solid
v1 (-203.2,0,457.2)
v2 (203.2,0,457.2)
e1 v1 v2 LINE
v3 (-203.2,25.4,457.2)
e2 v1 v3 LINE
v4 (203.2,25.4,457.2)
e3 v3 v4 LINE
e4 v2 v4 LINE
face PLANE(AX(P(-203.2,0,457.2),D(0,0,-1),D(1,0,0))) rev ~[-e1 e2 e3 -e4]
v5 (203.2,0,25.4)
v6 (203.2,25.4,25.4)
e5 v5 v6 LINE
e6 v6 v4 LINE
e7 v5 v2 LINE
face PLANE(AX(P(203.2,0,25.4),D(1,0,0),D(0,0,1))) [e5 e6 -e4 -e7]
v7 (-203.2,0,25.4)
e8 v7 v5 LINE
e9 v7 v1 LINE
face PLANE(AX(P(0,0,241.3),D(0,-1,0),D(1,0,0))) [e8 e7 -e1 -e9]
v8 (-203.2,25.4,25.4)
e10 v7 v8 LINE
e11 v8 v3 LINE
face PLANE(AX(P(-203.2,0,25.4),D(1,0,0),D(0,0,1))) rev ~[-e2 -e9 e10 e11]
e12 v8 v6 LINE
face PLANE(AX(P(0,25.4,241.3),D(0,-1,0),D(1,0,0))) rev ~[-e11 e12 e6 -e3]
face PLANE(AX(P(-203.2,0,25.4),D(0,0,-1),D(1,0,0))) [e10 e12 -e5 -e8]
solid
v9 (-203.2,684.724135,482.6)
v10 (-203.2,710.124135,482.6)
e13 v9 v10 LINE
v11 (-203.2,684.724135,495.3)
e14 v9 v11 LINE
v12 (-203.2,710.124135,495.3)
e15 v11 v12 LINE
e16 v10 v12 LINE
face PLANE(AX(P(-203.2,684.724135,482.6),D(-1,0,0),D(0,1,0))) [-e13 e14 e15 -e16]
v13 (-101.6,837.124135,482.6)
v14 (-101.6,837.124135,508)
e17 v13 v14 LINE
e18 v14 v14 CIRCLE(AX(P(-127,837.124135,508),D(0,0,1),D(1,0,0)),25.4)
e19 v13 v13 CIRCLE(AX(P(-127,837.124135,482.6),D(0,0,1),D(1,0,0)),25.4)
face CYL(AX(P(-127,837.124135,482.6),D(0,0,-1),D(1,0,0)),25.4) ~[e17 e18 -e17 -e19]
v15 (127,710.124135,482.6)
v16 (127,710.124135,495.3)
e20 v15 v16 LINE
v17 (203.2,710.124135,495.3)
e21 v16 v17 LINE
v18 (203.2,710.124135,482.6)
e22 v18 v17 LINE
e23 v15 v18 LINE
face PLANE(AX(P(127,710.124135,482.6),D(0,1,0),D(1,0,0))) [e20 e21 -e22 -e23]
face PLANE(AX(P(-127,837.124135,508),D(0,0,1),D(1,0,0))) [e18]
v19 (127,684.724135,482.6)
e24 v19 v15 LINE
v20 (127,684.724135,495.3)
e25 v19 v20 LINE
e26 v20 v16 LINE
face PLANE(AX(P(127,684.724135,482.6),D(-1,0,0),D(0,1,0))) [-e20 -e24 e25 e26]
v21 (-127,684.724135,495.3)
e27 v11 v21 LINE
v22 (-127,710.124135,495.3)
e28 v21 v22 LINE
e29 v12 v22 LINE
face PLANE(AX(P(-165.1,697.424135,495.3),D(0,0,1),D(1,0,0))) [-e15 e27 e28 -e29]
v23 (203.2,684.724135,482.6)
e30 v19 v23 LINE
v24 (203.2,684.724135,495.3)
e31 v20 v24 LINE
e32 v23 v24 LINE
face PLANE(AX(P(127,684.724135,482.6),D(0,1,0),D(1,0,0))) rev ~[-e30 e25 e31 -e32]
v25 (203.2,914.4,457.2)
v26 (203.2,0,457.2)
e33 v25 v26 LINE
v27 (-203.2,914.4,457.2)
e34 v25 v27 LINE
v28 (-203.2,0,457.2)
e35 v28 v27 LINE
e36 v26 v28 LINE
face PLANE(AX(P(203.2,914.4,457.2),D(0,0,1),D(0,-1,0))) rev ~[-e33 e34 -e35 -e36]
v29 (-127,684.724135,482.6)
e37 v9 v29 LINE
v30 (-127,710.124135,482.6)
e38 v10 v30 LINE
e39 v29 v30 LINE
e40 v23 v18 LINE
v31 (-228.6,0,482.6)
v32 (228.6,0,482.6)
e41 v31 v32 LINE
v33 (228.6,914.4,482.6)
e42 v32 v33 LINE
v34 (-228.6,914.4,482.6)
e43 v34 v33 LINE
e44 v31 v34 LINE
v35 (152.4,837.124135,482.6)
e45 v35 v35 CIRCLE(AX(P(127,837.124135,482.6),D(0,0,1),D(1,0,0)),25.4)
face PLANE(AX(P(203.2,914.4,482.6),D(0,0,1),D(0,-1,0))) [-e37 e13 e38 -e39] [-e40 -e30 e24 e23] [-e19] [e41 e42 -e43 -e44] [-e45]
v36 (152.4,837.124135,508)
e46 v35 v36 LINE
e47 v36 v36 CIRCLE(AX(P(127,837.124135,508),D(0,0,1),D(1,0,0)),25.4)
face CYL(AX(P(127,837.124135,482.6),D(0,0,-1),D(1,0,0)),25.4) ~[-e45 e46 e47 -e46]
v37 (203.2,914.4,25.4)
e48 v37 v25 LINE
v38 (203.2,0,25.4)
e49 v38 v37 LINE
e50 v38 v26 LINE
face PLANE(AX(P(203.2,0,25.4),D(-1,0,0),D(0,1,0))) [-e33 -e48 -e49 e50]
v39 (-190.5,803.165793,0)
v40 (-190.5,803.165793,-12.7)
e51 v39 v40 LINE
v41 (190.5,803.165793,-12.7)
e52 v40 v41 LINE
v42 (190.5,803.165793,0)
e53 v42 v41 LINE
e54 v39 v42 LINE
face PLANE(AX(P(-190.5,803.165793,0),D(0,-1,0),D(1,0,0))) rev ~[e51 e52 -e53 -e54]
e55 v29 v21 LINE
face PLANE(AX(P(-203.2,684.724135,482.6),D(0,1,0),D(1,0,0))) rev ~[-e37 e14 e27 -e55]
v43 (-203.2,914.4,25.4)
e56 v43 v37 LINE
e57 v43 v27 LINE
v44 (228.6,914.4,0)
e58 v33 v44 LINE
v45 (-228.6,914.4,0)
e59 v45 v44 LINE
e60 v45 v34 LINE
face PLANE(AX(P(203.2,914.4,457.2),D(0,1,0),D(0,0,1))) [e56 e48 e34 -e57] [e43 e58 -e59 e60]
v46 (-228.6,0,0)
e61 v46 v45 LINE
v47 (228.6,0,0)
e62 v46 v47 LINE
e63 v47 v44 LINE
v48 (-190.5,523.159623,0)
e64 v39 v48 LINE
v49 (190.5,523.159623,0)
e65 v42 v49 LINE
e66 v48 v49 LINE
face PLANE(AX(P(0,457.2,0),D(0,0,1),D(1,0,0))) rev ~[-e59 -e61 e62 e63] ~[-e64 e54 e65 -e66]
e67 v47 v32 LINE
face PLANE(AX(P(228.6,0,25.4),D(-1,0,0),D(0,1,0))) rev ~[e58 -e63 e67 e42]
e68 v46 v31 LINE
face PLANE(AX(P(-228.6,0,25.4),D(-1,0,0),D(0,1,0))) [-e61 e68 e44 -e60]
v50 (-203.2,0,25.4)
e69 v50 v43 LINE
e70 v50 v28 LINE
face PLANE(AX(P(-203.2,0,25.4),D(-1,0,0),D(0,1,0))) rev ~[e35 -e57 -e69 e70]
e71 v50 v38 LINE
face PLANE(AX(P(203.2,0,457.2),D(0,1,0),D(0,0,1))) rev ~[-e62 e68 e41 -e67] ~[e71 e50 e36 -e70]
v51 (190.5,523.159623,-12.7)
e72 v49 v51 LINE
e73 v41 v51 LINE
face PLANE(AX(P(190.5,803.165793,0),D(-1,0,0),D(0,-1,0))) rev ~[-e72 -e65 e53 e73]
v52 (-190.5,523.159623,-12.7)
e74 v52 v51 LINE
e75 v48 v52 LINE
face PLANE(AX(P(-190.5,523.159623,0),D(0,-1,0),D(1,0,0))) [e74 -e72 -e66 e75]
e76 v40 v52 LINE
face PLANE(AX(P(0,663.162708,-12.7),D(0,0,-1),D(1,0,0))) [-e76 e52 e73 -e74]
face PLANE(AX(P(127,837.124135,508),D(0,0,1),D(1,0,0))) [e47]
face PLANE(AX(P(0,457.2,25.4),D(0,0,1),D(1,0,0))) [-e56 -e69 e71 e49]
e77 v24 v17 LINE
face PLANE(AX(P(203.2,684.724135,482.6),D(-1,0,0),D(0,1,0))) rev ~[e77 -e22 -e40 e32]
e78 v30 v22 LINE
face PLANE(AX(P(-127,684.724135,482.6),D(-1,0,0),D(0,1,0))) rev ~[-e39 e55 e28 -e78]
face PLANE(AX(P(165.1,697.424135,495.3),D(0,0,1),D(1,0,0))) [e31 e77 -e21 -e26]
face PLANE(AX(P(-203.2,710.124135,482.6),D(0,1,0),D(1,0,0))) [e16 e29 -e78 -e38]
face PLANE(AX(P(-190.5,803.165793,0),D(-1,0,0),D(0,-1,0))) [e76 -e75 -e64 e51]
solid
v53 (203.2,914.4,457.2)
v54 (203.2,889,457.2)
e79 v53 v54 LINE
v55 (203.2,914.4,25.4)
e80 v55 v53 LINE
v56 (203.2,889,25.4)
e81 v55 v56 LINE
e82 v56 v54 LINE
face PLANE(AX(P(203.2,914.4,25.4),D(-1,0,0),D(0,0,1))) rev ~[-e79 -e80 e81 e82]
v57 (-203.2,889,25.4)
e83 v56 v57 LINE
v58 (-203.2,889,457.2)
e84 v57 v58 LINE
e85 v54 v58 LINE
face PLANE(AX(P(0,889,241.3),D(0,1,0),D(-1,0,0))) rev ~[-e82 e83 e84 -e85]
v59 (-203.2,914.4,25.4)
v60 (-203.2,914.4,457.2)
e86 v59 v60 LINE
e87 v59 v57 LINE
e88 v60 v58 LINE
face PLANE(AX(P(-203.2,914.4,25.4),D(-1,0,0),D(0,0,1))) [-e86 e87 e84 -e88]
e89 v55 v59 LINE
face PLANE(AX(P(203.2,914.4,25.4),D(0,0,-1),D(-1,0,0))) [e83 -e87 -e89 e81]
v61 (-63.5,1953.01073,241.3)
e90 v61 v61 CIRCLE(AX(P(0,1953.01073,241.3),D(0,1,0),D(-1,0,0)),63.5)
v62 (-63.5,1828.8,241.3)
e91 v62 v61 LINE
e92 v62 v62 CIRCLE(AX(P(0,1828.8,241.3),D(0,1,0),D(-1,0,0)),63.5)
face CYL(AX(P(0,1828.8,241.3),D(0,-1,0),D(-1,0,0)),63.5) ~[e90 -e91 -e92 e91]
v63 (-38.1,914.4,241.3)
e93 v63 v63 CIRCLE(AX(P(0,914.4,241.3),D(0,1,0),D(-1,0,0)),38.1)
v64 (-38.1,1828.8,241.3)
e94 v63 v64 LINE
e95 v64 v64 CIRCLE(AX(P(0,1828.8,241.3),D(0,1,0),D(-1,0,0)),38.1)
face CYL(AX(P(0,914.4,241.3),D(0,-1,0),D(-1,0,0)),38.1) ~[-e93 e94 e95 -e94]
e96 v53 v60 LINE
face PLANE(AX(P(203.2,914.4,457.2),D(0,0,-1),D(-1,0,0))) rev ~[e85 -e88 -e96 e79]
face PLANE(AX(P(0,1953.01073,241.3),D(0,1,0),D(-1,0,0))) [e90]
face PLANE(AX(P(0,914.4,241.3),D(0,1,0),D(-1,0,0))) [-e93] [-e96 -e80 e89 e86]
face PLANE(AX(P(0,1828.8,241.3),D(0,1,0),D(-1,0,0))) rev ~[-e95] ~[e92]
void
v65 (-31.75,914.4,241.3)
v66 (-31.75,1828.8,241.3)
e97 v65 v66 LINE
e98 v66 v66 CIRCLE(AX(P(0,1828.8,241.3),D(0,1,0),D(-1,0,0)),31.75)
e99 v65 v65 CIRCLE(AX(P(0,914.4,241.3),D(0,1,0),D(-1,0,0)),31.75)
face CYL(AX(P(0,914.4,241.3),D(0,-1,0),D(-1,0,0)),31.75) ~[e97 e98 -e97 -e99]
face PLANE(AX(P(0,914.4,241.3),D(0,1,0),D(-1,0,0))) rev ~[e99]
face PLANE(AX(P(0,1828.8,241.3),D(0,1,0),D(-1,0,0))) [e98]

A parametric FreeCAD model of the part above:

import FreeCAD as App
import Part
import Sketcher

V = App.Vector
Q = App.Units.Quantity

doc = App.newDocument("Part")
body = doc.addObject("PartDesign::Body", "Body")

sketch1 = doc.addObject("Sketcher::SketchObject", "Sketch")
body.addObject(sketch1)
sketch1.AttachmentSupport = (doc.XY_Plane, [""])
sketch1.MapMode = "FlatFace"
sketch1.addGeometry(Part.LineSegment(V(-228.6, 914.4, 0), V(-228.6, 0, 0)), False)
sketch1.addGeometry(Part.LineSegment(V(-228.6, 0, 0), V(228.6, 0, 0)), False)
sketch1.addGeometry(Part.LineSegment(V(228.6, 0, 0), V(228.6, 914.4, 0)), False)
sketch1.addGeometry(Part.LineSegment(V(228.6, 914.4, 0), V(-228.6, 914.4, 0)), False)
sketch1.addConstraint(Sketcher.Constraint("Coincident", 0, 2, 1, 1))
sketch1.addConstraint(Sketcher.Constraint("Coincident", 1, 2, 2, 1))
sketch1.addConstraint(Sketcher.Constraint("Coincident", 2, 2, 3, 1))
sketch1.addConstraint(Sketcher.Constraint("Coincident", 3, 2, 0, 1))
sketch1.addConstraint(Sketcher.Constraint("Vertical", 0))
sketch1.addConstraint(Sketcher.Constraint("Horizontal", 1))
sketch1.addConstraint(Sketcher.Constraint("Vertical", 2))
sketch1.addConstraint(Sketcher.Constraint("Horizontal", 3))
sketch1.addConstraint(Sketcher.Constraint("Symmetric", 0, 2, 1, 2, -1, 1))
sketch1.addConstraint(Sketcher.Constraint("DistanceX", 1, 1, 1, 2, Q("18 in")))
sketch1.addConstraint(Sketcher.Constraint("DistanceY", 0, 2, 0, 1, Q("36 in")))
pad1 = doc.addObject("PartDesign::Pad", "Pad")
body.addObject(pad1)
pad1.Profile = sketch1
pad1.Length = Q("1 in")

sketch2 = doc.addObject("Sketcher::SketchObject", "Sketch001")
body.addObject(sketch2)
sketch2.AttachmentSupport = (doc.XY_Plane, [""])
sketch2.MapMode = "FlatFace"
sketch2.AttachmentOffset = App.Placement(V(0, 0, 1 * 25.4), App.Rotation())
sketch2.addGeometry(Part.LineSegment(V(-228.6, 914.4, 0), V(-228.6, 0, 0)), False)
sketch2.addGeometry(Part.LineSegment(V(-228.6, 0, 0), V(-203.2, 0, 0)), False)
sketch2.addGeometry(Part.LineSegment(V(-203.2, 0, 0), V(-203.2, 914.4, 0)), False)
sketch2.addGeometry(Part.LineSegment(V(-203.2, 914.4, 0), V(-228.6, 914.4, 0)), False)
sketch2.addConstraint(Sketcher.Constraint("Coincident", 0, 2, 1, 1))
sketch2.addConstraint(Sketcher.Constraint("Coincident", 1, 2, 2, 1))
sketch2.addConstraint(Sketcher.Constraint("Coincident", 2, 2, 3, 1))
sketch2.addConstraint(Sketcher.Constraint("Coincident", 3, 2, 0, 1))
sketch2.addConstraint(Sketcher.Constraint("Vertical", 0))
sketch2.addConstraint(Sketcher.Constraint("Horizontal", 1))
sketch2.addConstraint(Sketcher.Constraint("Vertical", 2))
sketch2.addConstraint(Sketcher.Constraint("Horizontal", 3))
sketch2.addConstraint(Sketcher.Constraint("PointOnObject", 0, 2, -1))
sketch2.addConstraint(Sketcher.Constraint("DistanceX", 1, 1, 1, 2, Q("1 in")))
sketch2.addConstraint(Sketcher.Constraint("DistanceY", 0, 2, 0, 1, Q("36 in")))
sketch2.addConstraint(Sketcher.Constraint("DistanceX", 0, 2, -1, 1, Q("9 in")))
pad2 = doc.addObject("PartDesign::Pad", "Pad001")
body.addObject(pad2)
pad2.Profile = sketch2
pad2.Length = Q("18 in")

sketch3 = doc.addObject("Sketcher::SketchObject", "Sketch002")
body.addObject(sketch3)
sketch3.AttachmentSupport = (doc.XY_Plane, [""])
sketch3.MapMode = "FlatFace"
sketch3.AttachmentOffset = App.Placement(V(0, 0, 1 * 25.4), App.Rotation())
sketch3.addGeometry(Part.LineSegment(V(203.2, 914.4, 0), V(203.2, 0, 0)), False)
sketch3.addGeometry(Part.LineSegment(V(203.2, 0, 0), V(228.6, 0, 0)), False)
sketch3.addGeometry(Part.LineSegment(V(228.6, 0, 0), V(228.6, 914.4, 0)), False)
sketch3.addGeometry(Part.LineSegment(V(228.6, 914.4, 0), V(203.2, 914.4, 0)), False)
sketch3.addConstraint(Sketcher.Constraint("Coincident", 0, 2, 1, 1))
sketch3.addConstraint(Sketcher.Constraint("Coincident", 1, 2, 2, 1))
sketch3.addConstraint(Sketcher.Constraint("Coincident", 2, 2, 3, 1))
sketch3.addConstraint(Sketcher.Constraint("Coincident", 3, 2, 0, 1))
sketch3.addConstraint(Sketcher.Constraint("Vertical", 0))
sketch3.addConstraint(Sketcher.Constraint("Horizontal", 1))
sketch3.addConstraint(Sketcher.Constraint("Vertical", 2))
sketch3.addConstraint(Sketcher.Constraint("Horizontal", 3))
sketch3.addConstraint(Sketcher.Constraint("PointOnObject", 0, 2, -1))
sketch3.addConstraint(Sketcher.Constraint("DistanceX", 1, 1, 1, 2, Q("1 in")))
sketch3.addConstraint(Sketcher.Constraint("DistanceY", 0, 2, 0, 1, Q("36 in")))
sketch3.addConstraint(Sketcher.Constraint("DistanceX", -1, 1, 0, 2, Q("8 in")))
pad3 = doc.addObject("PartDesign::Pad", "Pad002")
body.addObject(pad3)
pad3.Profile = sketch3
pad3.Length = Q("18 in")

sketch4 = doc.addObject("Sketcher::SketchObject", "Sketch003")
body.addObject(sketch4)
sketch4.AttachmentSupport = (doc.YZ_Plane, [""])
sketch4.MapMode = "FlatFace"
sketch4.AttachmentOffset = App.Placement(V(0, 0, 8 * 25.4), App.Rotation())
sketch4.addGeometry(Part.LineSegment(V(914.4, 482.6, 0), V(914.4, 457.2, 0)), False)
sketch4.addGeometry(Part.LineSegment(V(914.4, 457.2, 0), V(0, 457.2, 0)), False)
sketch4.addGeometry(Part.LineSegment(V(0, 457.2, 0), V(0, 482.6, 0)), False)
sketch4.addGeometry(Part.LineSegment(V(0, 482.6, 0), V(914.4, 482.6, 0)), False)
sketch4.addConstraint(Sketcher.Constraint("Coincident", 0, 2, 1, 1))
sketch4.addConstraint(Sketcher.Constraint("Coincident", 1, 2, 2, 1))
sketch4.addConstraint(Sketcher.Constraint("Coincident", 2, 2, 3, 1))
sketch4.addConstraint(Sketcher.Constraint("Coincident", 3, 2, 0, 1))
sketch4.addConstraint(Sketcher.Constraint("Vertical", 0))
sketch4.addConstraint(Sketcher.Constraint("Horizontal", 1))
sketch4.addConstraint(Sketcher.Constraint("Vertical", 2))
sketch4.addConstraint(Sketcher.Constraint("Horizontal", 3))
sketch4.addConstraint(Sketcher.Constraint("PointOnObject", 1, 2, -2))
sketch4.addConstraint(Sketcher.Constraint("DistanceX", 1, 2, 1, 1, Q("36 in")))
sketch4.addConstraint(Sketcher.Constraint("DistanceY", 0, 2, 0, 1, Q("1 in")))
sketch4.addConstraint(Sketcher.Constraint("DistanceY", -1, 1, 0, 2, Q("18 in")))
pad4 = doc.addObject("PartDesign::Pad", "Pad003")
body.addObject(pad4)
pad4.Profile = sketch4
pad4.Length = Q("17 in")
pad4.Reversed = True

sketch5 = doc.addObject("Sketcher::SketchObject", "Sketch004")
body.addObject(sketch5)
sketch5.AttachmentSupport = (doc.XY_Plane, [""])
sketch5.MapMode = "FlatFace"
sketch5.AttachmentOffset = App.Placement(V(0, 0, 19 * 25.4), App.Rotation())
sketch5.addGeometry(Part.Circle(V(127, 837.124135, 0), V(0, 0, 1), 25.4), False)
sketch5.addGeometry(Part.Circle(V(-127, 837.124135, 0), V(0, 0, 1), 25.4), False)
sketch5.addConstraint(Sketcher.Constraint("Equal", 0, 1))
sketch5.addConstraint(Sketcher.Constraint("Symmetric", 0, 3, 1, 3, -2))
sketch5.addConstraint(Sketcher.Constraint("Diameter", 0, Q("2 in")))
sketch5.addConstraint(Sketcher.Constraint("DistanceX", -1, 1, 0, 3, Q("5 in")))
sketch5.addConstraint(Sketcher.Constraint("DistanceY", -1, 1, 0, 3, Q("837.124135 mm")))
pad5 = doc.addObject("PartDesign::Pad", "Pad004")
body.addObject(pad5)
pad5.Profile = sketch5
pad5.Length = Q("1 in")

sketch6 = doc.addObject("Sketcher::SketchObject", "Sketch005")
body.addObject(sketch6)
sketch6.AttachmentSupport = (doc.XY_Plane, [""])
sketch6.MapMode = "FlatFace"
sketch6.AttachmentOffset = App.Placement(V(0, 0, 19 * 25.4), App.Rotation())
sketch6.addGeometry(Part.LineSegment(V(-203.2, 710.124135, 0), V(-203.2, 684.724135, 0)), False)
sketch6.addGeometry(Part.LineSegment(V(-203.2, 684.724135, 0), V(-127, 684.724135, 0)), False)
sketch6.addGeometry(Part.LineSegment(V(-127, 684.724135, 0), V(-127, 710.124135, 0)), False)
sketch6.addGeometry(Part.LineSegment(V(-127, 710.124135, 0), V(-203.2, 710.124135, 0)), False)
sketch6.addGeometry(Part.LineSegment(V(127, 710.124135, 0), V(127, 684.724135, 0)), False)
sketch6.addGeometry(Part.LineSegment(V(127, 684.724135, 0), V(203.2, 684.724135, 0)), False)
sketch6.addGeometry(Part.LineSegment(V(203.2, 684.724135, 0), V(203.2, 710.124135, 0)), False)
sketch6.addGeometry(Part.LineSegment(V(203.2, 710.124135, 0), V(127, 710.124135, 0)), False)
sketch6.addConstraint(Sketcher.Constraint("Coincident", 0, 2, 1, 1))
sketch6.addConstraint(Sketcher.Constraint("Coincident", 1, 2, 2, 1))
sketch6.addConstraint(Sketcher.Constraint("Coincident", 2, 2, 3, 1))
sketch6.addConstraint(Sketcher.Constraint("Coincident", 3, 2, 0, 1))
sketch6.addConstraint(Sketcher.Constraint("Coincident", 4, 2, 5, 1))
sketch6.addConstraint(Sketcher.Constraint("Coincident", 5, 2, 6, 1))
sketch6.addConstraint(Sketcher.Constraint("Coincident", 6, 2, 7, 1))
sketch6.addConstraint(Sketcher.Constraint("Coincident", 7, 2, 4, 1))
sketch6.addConstraint(Sketcher.Constraint("Vertical", 0))
sketch6.addConstraint(Sketcher.Constraint("Horizontal", 1))
sketch6.addConstraint(Sketcher.Constraint("Vertical", 2))
sketch6.addConstraint(Sketcher.Constraint("Horizontal", 3))
sketch6.addConstraint(Sketcher.Constraint("Vertical", 4))
sketch6.addConstraint(Sketcher.Constraint("Horizontal", 5))
sketch6.addConstraint(Sketcher.Constraint("Vertical", 6))
sketch6.addConstraint(Sketcher.Constraint("Horizontal", 7))
sketch6.addConstraint(Sketcher.Constraint("Symmetric", 1, 2, 4, 2, -2))
sketch6.addConstraint(Sketcher.Constraint("Symmetric", 3, 2, 6, 2, -2))
sketch6.addConstraint(Sketcher.Constraint("DistanceX", 1, 1, 1, 2, Q("3 in")))
sketch6.addConstraint(Sketcher.Constraint("DistanceY", 0, 2, 0, 1, Q("1 in")))
sketch6.addConstraint(Sketcher.Constraint("DistanceX", 0, 2, -1, 1, Q("8 in")))
sketch6.addConstraint(Sketcher.Constraint("DistanceY", -1, 1, 0, 2, Q("684.724135 mm")))
pad6 = doc.addObject("PartDesign::Pad", "Pad005")
body.addObject(pad6)
pad6.Profile = sketch6
pad6.Length = Q("0.5 in")

sketch7 = doc.addObject("Sketcher::SketchObject", "Sketch006")
body.addObject(sketch7)
sketch7.AttachmentSupport = (doc.XY_Plane, [""])
sketch7.MapMode = "FlatFace"
sketch7.addGeometry(Part.LineSegment(V(-190.5, 523.159623, 0), V(-190.5, 803.165793, 0)), False)
sketch7.addGeometry(Part.LineSegment(V(-190.5, 803.165793, 0), V(190.5, 803.165793, 0)), False)
sketch7.addGeometry(Part.LineSegment(V(190.5, 803.165793, 0), V(190.5, 523.159623, 0)), False)
sketch7.addGeometry(Part.LineSegment(V(190.5, 523.159623, 0), V(-190.5, 523.159623, 0)), False)
sketch7.addConstraint(Sketcher.Constraint("Coincident", 0, 2, 1, 1))
sketch7.addConstraint(Sketcher.Constraint("Coincident", 1, 2, 2, 1))
sketch7.addConstraint(Sketcher.Constraint("Coincident", 2, 2, 3, 1))
sketch7.addConstraint(Sketcher.Constraint("Coincident", 3, 2, 0, 1))
sketch7.addConstraint(Sketcher.Constraint("Vertical", 0))
sketch7.addConstraint(Sketcher.Constraint("Horizontal", 1))
sketch7.addConstraint(Sketcher.Constraint("Vertical", 2))
sketch7.addConstraint(Sketcher.Constraint("Horizontal", 3))
sketch7.addConstraint(Sketcher.Constraint("DistanceX", 1, 1, 1, 2, Q("15 in")))
sketch7.addConstraint(Sketcher.Constraint("DistanceX", 0, 2, -1, 1, Q("7.5 in")))
sketch7.addConstraint(Sketcher.Constraint("DistanceY", 0, 1, 0, 2, Q("280.00617 mm")))
sketch7.addConstraint(Sketcher.Constraint("DistanceY", -1, 1, 0, 2, Q("803.165793 mm")))
pad7 = doc.addObject("PartDesign::Pad", "Pad006")
body.addObject(pad7)
pad7.Profile = sketch7
pad7.Length = Q("0.5 in")
pad7.Reversed = True
body2 = doc.addObject("PartDesign::Body", "Body001")

sketch8 = doc.addObject("Sketcher::SketchObject", "Sketch007")
body2.addObject(sketch8)
sketch8.AttachmentSupport = (doc.getObject("XZ_Plane001"), [""])
sketch8.MapMode = "FlatFace"
sketch8.addGeometry(Part.LineSegment(V(-203.2, 457.2, 0), V(-203.2, 25.4, 0)), False)
sketch8.addGeometry(Part.LineSegment(V(-203.2, 25.4, 0), V(203.2, 25.4, 0)), False)
sketch8.addGeometry(Part.LineSegment(V(203.2, 25.4, 0), V(203.2, 457.2, 0)), False)
sketch8.addGeometry(Part.LineSegment(V(203.2, 457.2, 0), V(-203.2, 457.2, 0)), False)
sketch8.addConstraint(Sketcher.Constraint("Coincident", 0, 2, 1, 1))
sketch8.addConstraint(Sketcher.Constraint("Coincident", 1, 2, 2, 1))
sketch8.addConstraint(Sketcher.Constraint("Coincident", 2, 2, 3, 1))
sketch8.addConstraint(Sketcher.Constraint("Coincident", 3, 2, 0, 1))
sketch8.addConstraint(Sketcher.Constraint("Vertical", 0))
sketch8.addConstraint(Sketcher.Constraint("Horizontal", 1))
sketch8.addConstraint(Sketcher.Constraint("Vertical", 2))
sketch8.addConstraint(Sketcher.Constraint("Horizontal", 3))
sketch8.addConstraint(Sketcher.Constraint("DistanceX", 1, 1, 1, 2, Q("16 in")))
sketch8.addConstraint(Sketcher.Constraint("DistanceY", 0, 2, 0, 1, Q("17 in")))
sketch8.addConstraint(Sketcher.Constraint("DistanceX", 0, 2, -1, 1, Q("8 in")))
sketch8.addConstraint(Sketcher.Constraint("DistanceY", -1, 1, 0, 2, Q("1 in")))
pad8 = doc.addObject("PartDesign::Pad", "Pad007")
body2.addObject(pad8)
pad8.Profile = sketch8
pad8.Length = Q("1 in")
pad8.Reversed = True
body3 = doc.addObject("PartDesign::Body", "Body002")

sketch9 = doc.addObject("Sketcher::SketchObject", "Sketch008")
body3.addObject(sketch9)
sketch9.AttachmentSupport = (doc.getObject("XZ_Plane002"), [""])
sketch9.MapMode = "FlatFace"
sketch9.AttachmentOffset = App.Placement(V(0, 0, -36 * 25.4), App.Rotation())
sketch9.addGeometry(Part.LineSegment(V(203.2, 457.2, 0), V(203.2, 25.4, 0)), False)
sketch9.addGeometry(Part.LineSegment(V(203.2, 25.4, 0), V(-203.2, 25.4, 0)), False)
sketch9.addGeometry(Part.LineSegment(V(-203.2, 25.4, 0), V(-203.2, 457.2, 0)), False)
sketch9.addGeometry(Part.LineSegment(V(-203.2, 457.2, 0), V(203.2, 457.2, 0)), False)
sketch9.addConstraint(Sketcher.Constraint("Coincident", 0, 2, 1, 1))
sketch9.addConstraint(Sketcher.Constraint("Coincident", 1, 2, 2, 1))
sketch9.addConstraint(Sketcher.Constraint("Coincident", 2, 2, 3, 1))
sketch9.addConstraint(Sketcher.Constraint("Coincident", 3, 2, 0, 1))
sketch9.addConstraint(Sketcher.Constraint("Vertical", 0))
sketch9.addConstraint(Sketcher.Constraint("Horizontal", 1))
sketch9.addConstraint(Sketcher.Constraint("Vertical", 2))
sketch9.addConstraint(Sketcher.Constraint("Horizontal", 3))
sketch9.addConstraint(Sketcher.Constraint("DistanceX", 1, 2, 1, 1, Q("16 in")))
sketch9.addConstraint(Sketcher.Constraint("DistanceY", 0, 2, 0, 1, Q("17 in")))
sketch9.addConstraint(Sketcher.Constraint("DistanceX", -1, 1, 0, 2, Q("8 in")))
sketch9.addConstraint(Sketcher.Constraint("DistanceY", -1, 1, 0, 2, Q("1 in")))
pad9 = doc.addObject("PartDesign::Pad", "Pad008")
body3.addObject(pad9)
pad9.Profile = sketch9
pad9.Length = Q("1 in")

sketch10 = doc.addObject("Sketcher::SketchObject", "Sketch009")
body3.addObject(sketch10)
sketch10.AttachmentSupport = (doc.getObject("XZ_Plane002"), [""])
sketch10.MapMode = "FlatFace"
sketch10.AttachmentOffset = App.Placement(V(0, 0, -36 * 25.4), App.Rotation())
sketch10.addGeometry(Part.Circle(V(0, 241.3, 0), V(0, 0, 1), 38.1), False)
sketch10.addGeometry(Part.Circle(V(0, 241.3, 0), V(0, 0, 1), 31.75), False)
sketch10.addConstraint(Sketcher.Constraint("Coincident", 1, 3, 0, 3))
sketch10.addConstraint(Sketcher.Constraint("PointOnObject", 0, 3, -2))
sketch10.addConstraint(Sketcher.Constraint("Diameter", 0, Q("3 in")))
sketch10.addConstraint(Sketcher.Constraint("Diameter", 1, Q("2.5 in")))
sketch10.addConstraint(Sketcher.Constraint("DistanceY", -1, 1, 0, 3, Q("9.5 in")))
pad10 = doc.addObject("PartDesign::Pad", "Pad009")
body3.addObject(pad10)
pad10.Profile = sketch10
pad10.Length = Q("36 in")
pad10.Reversed = True

sketch11 = doc.addObject("Sketcher::SketchObject", "Sketch010")
body3.addObject(sketch11)
sketch11.AttachmentSupport = (doc.getObject("XZ_Plane002"), [""])
sketch11.MapMode = "FlatFace"
sketch11.AttachmentOffset = App.Placement(V(0, 0, -72 * 25.4), App.Rotation())
sketch11.addGeometry(Part.Circle(V(0, 241.3, 0), V(0, 0, 1), 63.5), False)
sketch11.addConstraint(Sketcher.Constraint("PointOnObject", 0, 3, -2))
sketch11.addConstraint(Sketcher.Constraint("Diameter", 0, Q("5 in")))
sketch11.addConstraint(Sketcher.Constraint("DistanceY", -1, 1, 0, 3, Q("9.5 in")))
pad11 = doc.addObject("PartDesign::Pad", "Pad010")
body3.addObject(pad11)
pad11.Profile = sketch11
pad11.Length = 124.21073
pad11.Reversed = True

doc.recompute()
